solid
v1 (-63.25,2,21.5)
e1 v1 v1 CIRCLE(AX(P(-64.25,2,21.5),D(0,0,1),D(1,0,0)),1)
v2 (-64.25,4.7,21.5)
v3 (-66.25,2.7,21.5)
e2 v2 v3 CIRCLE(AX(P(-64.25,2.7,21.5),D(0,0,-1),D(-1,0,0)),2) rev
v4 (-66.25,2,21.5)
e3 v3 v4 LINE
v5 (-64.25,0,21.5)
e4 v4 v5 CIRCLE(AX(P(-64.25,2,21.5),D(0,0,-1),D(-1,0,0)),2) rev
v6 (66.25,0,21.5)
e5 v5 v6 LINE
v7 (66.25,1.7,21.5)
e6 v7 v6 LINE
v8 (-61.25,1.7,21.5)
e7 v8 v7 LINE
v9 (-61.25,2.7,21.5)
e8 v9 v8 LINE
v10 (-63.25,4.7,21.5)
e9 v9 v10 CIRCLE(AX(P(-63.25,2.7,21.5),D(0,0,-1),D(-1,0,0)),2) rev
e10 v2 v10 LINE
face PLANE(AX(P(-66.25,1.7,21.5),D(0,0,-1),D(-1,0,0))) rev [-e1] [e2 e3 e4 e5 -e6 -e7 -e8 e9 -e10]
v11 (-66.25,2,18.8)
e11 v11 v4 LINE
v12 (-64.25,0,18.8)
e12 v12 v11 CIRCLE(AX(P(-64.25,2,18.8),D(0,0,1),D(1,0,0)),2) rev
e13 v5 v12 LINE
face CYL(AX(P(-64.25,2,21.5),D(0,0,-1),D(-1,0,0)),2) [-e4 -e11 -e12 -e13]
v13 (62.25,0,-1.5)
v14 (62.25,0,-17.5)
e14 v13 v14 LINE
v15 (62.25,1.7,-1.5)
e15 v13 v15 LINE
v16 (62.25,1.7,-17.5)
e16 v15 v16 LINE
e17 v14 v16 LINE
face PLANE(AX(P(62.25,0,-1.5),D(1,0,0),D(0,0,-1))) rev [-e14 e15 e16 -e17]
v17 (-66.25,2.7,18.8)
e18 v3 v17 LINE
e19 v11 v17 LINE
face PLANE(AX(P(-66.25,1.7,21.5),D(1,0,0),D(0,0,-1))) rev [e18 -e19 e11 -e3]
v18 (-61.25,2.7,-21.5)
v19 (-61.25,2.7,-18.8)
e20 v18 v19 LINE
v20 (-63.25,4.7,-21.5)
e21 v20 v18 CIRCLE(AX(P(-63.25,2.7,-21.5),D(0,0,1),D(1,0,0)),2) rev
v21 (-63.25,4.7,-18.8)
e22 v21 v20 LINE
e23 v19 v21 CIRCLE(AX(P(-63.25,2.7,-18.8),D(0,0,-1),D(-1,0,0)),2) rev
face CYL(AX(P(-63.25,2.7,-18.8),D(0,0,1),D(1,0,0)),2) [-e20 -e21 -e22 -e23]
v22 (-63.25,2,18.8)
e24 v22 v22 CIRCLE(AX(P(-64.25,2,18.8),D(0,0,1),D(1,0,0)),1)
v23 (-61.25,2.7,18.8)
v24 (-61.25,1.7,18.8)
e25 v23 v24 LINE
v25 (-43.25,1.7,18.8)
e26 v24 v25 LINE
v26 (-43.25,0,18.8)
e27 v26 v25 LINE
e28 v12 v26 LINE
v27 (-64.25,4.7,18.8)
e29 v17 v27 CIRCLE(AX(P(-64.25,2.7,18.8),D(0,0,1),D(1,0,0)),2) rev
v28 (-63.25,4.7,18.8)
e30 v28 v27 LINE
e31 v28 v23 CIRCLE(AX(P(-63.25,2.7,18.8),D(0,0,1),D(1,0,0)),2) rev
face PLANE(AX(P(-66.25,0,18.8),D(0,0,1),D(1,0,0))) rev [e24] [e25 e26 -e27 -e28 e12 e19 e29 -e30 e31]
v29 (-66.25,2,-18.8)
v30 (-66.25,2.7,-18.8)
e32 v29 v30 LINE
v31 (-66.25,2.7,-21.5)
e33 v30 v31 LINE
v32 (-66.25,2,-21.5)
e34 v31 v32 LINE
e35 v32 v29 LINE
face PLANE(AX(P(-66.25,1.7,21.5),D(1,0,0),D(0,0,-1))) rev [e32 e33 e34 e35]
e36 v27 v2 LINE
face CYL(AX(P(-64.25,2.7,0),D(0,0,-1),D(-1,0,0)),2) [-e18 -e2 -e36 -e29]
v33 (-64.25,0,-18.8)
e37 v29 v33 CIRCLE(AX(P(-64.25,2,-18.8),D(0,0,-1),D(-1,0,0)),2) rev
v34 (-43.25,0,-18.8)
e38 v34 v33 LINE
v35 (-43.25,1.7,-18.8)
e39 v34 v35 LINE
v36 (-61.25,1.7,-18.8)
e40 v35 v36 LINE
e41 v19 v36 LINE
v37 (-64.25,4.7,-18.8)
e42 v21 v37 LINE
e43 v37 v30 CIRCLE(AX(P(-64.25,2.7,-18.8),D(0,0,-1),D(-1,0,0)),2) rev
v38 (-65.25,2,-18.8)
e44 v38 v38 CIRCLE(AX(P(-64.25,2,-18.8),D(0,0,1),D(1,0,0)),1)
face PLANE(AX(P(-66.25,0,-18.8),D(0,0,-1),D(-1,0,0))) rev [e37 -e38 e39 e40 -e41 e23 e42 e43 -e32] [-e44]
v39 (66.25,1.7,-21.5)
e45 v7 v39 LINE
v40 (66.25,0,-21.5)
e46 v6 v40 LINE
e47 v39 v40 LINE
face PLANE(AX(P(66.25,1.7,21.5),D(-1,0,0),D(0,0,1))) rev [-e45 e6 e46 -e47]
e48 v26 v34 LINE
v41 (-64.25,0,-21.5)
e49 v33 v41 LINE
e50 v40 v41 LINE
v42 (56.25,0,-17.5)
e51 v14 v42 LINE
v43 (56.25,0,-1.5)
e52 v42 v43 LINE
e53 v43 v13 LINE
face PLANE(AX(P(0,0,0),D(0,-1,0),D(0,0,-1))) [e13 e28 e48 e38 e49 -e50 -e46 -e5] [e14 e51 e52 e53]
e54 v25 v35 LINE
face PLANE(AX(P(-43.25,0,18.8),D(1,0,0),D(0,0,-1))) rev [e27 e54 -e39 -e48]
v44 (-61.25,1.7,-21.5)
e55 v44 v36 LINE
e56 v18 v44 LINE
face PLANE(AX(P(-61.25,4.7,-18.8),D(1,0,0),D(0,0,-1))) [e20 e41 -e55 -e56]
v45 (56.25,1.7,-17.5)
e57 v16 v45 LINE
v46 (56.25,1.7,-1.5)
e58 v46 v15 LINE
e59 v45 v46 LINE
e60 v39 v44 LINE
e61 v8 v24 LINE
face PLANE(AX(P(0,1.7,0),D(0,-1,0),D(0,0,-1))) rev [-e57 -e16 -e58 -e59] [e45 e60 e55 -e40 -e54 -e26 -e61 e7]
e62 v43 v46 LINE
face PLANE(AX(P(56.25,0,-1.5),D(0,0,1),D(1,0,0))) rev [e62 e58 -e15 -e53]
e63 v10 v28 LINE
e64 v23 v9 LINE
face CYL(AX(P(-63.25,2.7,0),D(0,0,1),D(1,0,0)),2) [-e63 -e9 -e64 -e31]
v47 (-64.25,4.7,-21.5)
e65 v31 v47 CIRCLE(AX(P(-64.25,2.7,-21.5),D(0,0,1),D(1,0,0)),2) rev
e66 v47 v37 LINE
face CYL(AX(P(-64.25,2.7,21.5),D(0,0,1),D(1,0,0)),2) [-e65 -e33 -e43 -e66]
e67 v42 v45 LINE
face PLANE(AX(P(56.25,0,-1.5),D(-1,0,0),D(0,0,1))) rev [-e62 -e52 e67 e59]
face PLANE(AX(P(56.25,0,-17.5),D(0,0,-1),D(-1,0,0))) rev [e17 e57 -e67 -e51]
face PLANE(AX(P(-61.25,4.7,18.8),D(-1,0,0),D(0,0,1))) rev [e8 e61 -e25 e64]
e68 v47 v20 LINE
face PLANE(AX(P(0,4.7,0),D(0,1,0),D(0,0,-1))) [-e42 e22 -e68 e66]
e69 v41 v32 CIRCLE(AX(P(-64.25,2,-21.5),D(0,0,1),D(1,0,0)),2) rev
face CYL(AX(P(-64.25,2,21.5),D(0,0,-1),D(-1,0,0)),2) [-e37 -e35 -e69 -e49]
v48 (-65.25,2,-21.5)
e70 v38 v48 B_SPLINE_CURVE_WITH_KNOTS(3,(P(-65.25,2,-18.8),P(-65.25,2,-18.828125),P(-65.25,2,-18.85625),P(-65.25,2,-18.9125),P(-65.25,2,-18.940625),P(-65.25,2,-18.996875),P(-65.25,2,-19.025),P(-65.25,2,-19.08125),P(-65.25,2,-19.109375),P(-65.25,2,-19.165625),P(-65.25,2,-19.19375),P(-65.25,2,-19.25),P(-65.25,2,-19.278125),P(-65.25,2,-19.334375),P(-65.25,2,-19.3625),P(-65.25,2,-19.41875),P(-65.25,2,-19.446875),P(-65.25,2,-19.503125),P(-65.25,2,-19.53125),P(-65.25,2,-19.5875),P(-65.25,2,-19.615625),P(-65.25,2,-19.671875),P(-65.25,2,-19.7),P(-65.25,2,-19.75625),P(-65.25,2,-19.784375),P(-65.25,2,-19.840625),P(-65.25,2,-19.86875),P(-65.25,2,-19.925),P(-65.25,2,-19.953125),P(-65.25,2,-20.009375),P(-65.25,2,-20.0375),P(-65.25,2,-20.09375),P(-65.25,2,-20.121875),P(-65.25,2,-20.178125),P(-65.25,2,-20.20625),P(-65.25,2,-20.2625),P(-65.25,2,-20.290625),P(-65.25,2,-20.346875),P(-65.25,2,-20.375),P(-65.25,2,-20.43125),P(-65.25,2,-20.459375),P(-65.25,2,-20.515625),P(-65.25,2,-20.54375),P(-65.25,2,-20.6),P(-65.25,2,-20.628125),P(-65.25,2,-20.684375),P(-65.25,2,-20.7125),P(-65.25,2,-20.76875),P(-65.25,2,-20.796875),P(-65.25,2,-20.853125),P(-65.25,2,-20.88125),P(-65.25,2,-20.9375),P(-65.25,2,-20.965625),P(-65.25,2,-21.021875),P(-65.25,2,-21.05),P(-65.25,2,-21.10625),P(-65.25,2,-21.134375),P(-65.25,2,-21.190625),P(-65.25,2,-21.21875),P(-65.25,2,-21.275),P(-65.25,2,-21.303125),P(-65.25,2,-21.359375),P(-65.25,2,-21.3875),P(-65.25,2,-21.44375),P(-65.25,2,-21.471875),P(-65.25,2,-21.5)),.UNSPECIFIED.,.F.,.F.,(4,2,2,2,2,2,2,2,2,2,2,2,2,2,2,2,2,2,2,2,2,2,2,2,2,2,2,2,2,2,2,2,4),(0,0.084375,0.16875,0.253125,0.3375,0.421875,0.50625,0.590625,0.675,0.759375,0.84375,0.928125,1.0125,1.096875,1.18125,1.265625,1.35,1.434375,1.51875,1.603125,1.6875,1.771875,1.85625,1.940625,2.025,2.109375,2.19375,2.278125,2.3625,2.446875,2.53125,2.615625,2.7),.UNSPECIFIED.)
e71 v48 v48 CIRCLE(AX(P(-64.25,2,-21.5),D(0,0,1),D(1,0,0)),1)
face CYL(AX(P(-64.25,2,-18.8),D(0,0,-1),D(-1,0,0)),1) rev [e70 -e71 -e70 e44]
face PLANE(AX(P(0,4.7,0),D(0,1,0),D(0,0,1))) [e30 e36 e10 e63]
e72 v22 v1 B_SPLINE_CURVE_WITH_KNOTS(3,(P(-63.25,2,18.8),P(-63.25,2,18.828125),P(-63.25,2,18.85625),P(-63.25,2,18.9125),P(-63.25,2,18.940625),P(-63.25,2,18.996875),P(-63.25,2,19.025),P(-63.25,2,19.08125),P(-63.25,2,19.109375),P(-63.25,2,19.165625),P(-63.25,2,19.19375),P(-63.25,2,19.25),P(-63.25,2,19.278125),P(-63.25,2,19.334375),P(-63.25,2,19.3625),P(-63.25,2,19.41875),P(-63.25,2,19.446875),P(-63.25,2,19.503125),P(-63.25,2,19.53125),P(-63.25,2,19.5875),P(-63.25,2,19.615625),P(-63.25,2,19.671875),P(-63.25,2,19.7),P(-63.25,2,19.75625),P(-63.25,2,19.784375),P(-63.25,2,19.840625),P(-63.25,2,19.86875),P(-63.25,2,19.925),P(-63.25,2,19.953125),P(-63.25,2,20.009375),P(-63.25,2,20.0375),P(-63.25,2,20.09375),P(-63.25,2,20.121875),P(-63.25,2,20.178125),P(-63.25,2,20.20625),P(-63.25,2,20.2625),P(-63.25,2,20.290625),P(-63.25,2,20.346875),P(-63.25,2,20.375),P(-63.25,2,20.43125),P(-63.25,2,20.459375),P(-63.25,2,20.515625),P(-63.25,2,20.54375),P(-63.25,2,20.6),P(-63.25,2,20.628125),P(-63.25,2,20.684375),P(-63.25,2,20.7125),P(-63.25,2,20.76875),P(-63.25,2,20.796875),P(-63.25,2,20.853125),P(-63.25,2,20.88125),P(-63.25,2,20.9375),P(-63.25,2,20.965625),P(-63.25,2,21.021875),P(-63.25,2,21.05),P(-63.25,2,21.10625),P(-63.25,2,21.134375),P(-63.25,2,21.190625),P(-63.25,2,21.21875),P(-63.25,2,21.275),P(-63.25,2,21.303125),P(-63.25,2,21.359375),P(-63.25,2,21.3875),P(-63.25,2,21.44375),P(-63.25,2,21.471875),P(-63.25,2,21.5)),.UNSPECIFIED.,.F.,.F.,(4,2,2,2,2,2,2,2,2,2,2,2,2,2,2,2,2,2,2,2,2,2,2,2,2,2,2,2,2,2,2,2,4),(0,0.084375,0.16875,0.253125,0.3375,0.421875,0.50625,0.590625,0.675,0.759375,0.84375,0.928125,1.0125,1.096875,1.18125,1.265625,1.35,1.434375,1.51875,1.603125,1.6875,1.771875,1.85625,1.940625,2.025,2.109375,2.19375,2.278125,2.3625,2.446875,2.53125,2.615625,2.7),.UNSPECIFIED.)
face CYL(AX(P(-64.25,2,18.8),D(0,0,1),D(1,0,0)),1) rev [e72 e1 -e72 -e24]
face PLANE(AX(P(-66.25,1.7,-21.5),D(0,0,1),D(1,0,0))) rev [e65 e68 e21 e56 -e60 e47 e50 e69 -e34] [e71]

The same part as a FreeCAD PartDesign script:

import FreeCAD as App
import Part
import Sketcher

V = App.Vector


def edges_at(feature, points):
    """Names of the edges that pass closest to the given points."""
    edges = feature.Shape.Edges
    near = lambda p: min(range(len(edges)), key=lambda i: edges[i].distToShape(Part.Vertex(*p))[0])
    return sorted({f"Edge{near(p) + 1}" for p in points})


def add_polygon(sketch, points):
    """Adds a closed chain of lines whose ends are joined by coincident constraints."""
    first, n = sketch.GeometryCount, len(points)
    for a, b in zip(points, points[1:] + points[:1]):
        sketch.addGeometry(Part.LineSegment(App.Vector(*a, 0), App.Vector(*b, 0)), False)
    for i in range(n):
        sketch.addConstraint(Sketcher.Constraint("Coincident", first + i, 2, first + (i + 1) % n, 1))

doc = App.newDocument("Part")
body = doc.addObject("PartDesign::Body", "Body")

sketch1 = doc.addObject("Sketcher::SketchObject", "Sketch")
body.addObject(sketch1)
sketch1.AttachmentSupport = (doc.XZ_Plane, [""])
sketch1.MapMode = "FlatFace"
add_polygon(sketch1, [(-66, -22), (-66, 22), (66, 22), (66, -22)])
sketch1.addConstraint([
    Sketcher.Constraint("Vertical", 0),
    Sketcher.Constraint("Horizontal", 1),
    Sketcher.Constraint("Vertical", 2),
    Sketcher.Constraint("Horizontal", 3),
    Sketcher.Constraint("Symmetric", 0, 2, 2, 2, -1, 1),
    Sketcher.Constraint("DistanceY", 0, 1, 0, 2, 43.0),
    Sketcher.Constraint("DistanceX", 1, 1, 1, 2, 132.5),
])
pad1 = doc.addObject("PartDesign::Pad", "Pad")
body.addObject(pad1)
pad1.Profile = sketch1
pad1.Length = 1.7
pad1.Reversed = True

sketch2 = doc.addObject("Sketcher::SketchObject", "Sketch001")
body.addObject(sketch2)
sketch2.AttachmentSupport = (doc.XZ_Plane, [""])
sketch2.MapMode = "FlatFace"
sketch2.AttachmentOffset = App.Placement(V(0, 0, -1.7), App.Rotation())
add_polygon(sketch2, [(-66, -19), (-66, 19), (-43, 19), (-43, -19)])
sketch2.addConstraint([
    Sketcher.Constraint("Vertical", 0),
    Sketcher.Constraint("Horizontal", 1),
    Sketcher.Constraint("Vertical", 2),
    Sketcher.Constraint("Horizontal", 3),
    Sketcher.Constraint("DistanceX", 1, 1, 1, 2, 23.0),
    Sketcher.Constraint("DistanceY", 0, 1, 0, 2, 37.6),
    Sketcher.Constraint("DistanceY", -1, 1, 0, 2, 18.8),
    Sketcher.Constraint("DistanceX", 0, 2, -1, 1, 66.25),
])
pocket1 = doc.addObject("PartDesign::Pocket", "Pocket")
body.addObject(pocket1)
pocket1.Profile = sketch2
pocket1.Length = 1.7
pocket1.Reversed = True

sketch3 = doc.addObject("Sketcher::SketchObject", "Sketch002")
body.addObject(sketch3)
sketch3.AttachmentSupport = (doc.XZ_Plane, [""])
sketch3.MapMode = "FlatFace"
sketch3.AttachmentOffset = App.Placement(V(0, 0, -1.7), App.Rotation())
add_polygon(sketch3, [(-66.2, 18.8), (-66.2, 21.5), (-61.2, 21.5), (-61.2, 18.8)])
sketch3.addConstraint([
    Sketcher.Constraint("Vertical", 0),
    Sketcher.Constraint("Horizontal", 1),
    Sketcher.Constraint("Vertical", 2),
    Sketcher.Constraint("Horizontal", 3),
    Sketcher.Constraint("DistanceX", 1, 1, 1, 2, 5.0),
    Sketcher.Constraint("DistanceY", 0, 1, 0, 2, 2.7),
    Sketcher.Constraint("DistanceY", -1, 1, 0, 2, 21.5),
    Sketcher.Constraint("DistanceX", 0, 2, -1, 1, 66.25),
])
pad2 = doc.addObject("PartDesign::Pad", "Pad001")
body.addObject(pad2)
pad2.Profile = sketch3
pad2.Length = 3
pad2.Reversed = True

sketch4 = doc.addObject("Sketcher::SketchObject", "Sketch003")
body.addObject(sketch4)
sketch4.AttachmentSupport = (doc.XY_Plane, [""])
sketch4.MapMode = "FlatFace"
sketch4.AttachmentOffset = App.Placement(V(0, 0, 21.5), App.Rotation())
sketch4.addGeometry(Part.Circle(V(-64.2, 2, 0), V(0, 0, 1), 1), False)
sketch4.addConstraint([
    Sketcher.Constraint("Diameter", 0, 2.0),
    Sketcher.Constraint("DistanceY", -1, 1, 0, 3, 2.0),
    Sketcher.Constraint("DistanceX", 0, 3, -1, 1, 64.25),
])
pocket2 = doc.addObject("PartDesign::Pocket", "Pocket001")
body.addObject(pocket2)
pocket2.Profile = sketch4
pocket2.Length = 2.7
doc.recompute()

fillet = doc.addObject("PartDesign::Fillet", "Fillet")
body.addObject(fillet)
fillet.Base = (pocket2, edges_at(pocket2, [(-66.25, 0, 20.15), (-66.25, 4.7, 20.15), (-61.25, 4.7, 20.15)]))
fillet.Radius = 2
doc.recompute()

mirrored = doc.addObject("PartDesign::Mirrored", "Mirrored")
body.addObject(mirrored)
mirrored.Originals = [pad2, pocket2]
mirrored.MirrorPlane = (doc.XY_Plane, [""])
body.Tip = mirrored
doc.recompute()

fillet2 = doc.addObject("PartDesign::Fillet", "Fillet001")
body.addObject(fillet2)
fillet2.Base = (mirrored, edges_at(mirrored, [(-66.25, 0, -20.15), (-66.25, 4.7, -20.15), (-61.25, 4.7, -20.15)]))
fillet2.Radius = 2

sketch5 = doc.addObject("Sketcher::SketchObject", "Sketch004")
body.addObject(sketch5)
sketch5.AttachmentSupport = (doc.XZ_Plane, [""])
sketch5.MapMode = "FlatFace"
sketch5.AttachmentOffset = App.Placement(V(0, 0, -1.7), App.Rotation())
add_polygon(sketch5, [(56, -18), (56, -2), (62, -2), (62, -18)])
sketch5.addConstraint([
    Sketcher.Constraint("Vertical", 0),
    Sketcher.Constraint("Horizontal", 1),
    Sketcher.Constraint("Vertical", 2),
    Sketcher.Constraint("Horizontal", 3),
    Sketcher.Constraint("DistanceX", 1, 1, 1, 2, 6.0),
    Sketcher.Constraint("DistanceY", 0, 1, 0, 2, 16.0),
    Sketcher.Constraint("DistanceY", 0, 2, -1, 1, 1.5),
    Sketcher.Constraint("DistanceX", -1, 1, 0, 2, 56.25),
])
pocket3 = doc.addObject("PartDesign::Pocket", "Pocket002")
body.addObject(pocket3)
pocket3.Profile = sketch5
pocket3.Length = 1.7
pocket3.Reversed = True

doc.recompute()
